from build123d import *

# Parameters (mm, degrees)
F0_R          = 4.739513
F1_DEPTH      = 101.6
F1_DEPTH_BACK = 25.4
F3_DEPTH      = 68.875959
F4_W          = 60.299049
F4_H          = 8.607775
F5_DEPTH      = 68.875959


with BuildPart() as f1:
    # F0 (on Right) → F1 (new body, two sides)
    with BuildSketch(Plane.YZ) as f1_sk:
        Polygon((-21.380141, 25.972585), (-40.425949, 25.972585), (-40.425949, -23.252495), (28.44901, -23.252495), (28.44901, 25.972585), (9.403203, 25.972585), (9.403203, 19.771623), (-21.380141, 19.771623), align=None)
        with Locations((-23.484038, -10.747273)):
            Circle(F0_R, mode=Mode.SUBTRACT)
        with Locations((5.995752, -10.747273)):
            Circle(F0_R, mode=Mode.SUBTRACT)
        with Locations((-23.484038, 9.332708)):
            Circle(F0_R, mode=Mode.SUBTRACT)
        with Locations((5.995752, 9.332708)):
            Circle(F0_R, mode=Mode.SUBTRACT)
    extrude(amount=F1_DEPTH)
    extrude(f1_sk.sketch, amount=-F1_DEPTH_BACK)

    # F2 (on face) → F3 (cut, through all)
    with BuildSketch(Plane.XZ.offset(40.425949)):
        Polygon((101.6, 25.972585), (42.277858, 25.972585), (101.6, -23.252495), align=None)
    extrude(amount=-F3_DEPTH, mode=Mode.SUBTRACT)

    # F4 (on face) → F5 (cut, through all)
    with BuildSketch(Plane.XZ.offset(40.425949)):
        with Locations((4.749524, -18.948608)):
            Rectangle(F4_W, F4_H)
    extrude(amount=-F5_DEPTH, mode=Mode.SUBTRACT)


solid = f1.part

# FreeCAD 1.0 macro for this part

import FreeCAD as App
import Part
import Sketcher
from FreeCAD import Vector
Q = App.Units.Quantity

doc = App.newDocument("Part")
body = doc.addObject("PartDesign::Body", "Body")

# Sketch on YZ plane
sketch1 = body.newObject("Sketcher::SketchObject", "Sketch")
sketch1.AttachmentSupport = (doc.getObject("YZ_Plane"), [""])
sketch1.MapMode = "FlatFace"
sketch1.addGeometry([
    Part.LineSegment(Vector(-21.4, 26, 0), Vector(-40.4, 26, 0)),  # 0
    Part.LineSegment(Vector(-40.4, 26, 0), Vector(-40.4, -23.3, 0)),  # 1
    Part.LineSegment(Vector(-40.4, -23.3, 0), Vector(28.4, -23.3, 0)),  # 2
    Part.LineSegment(Vector(28.4, -23.3, 0), Vector(28.4, 26, 0)),  # 3
    Part.LineSegment(Vector(28.4, 26, 0), Vector(9.4, 26, 0)),  # 4
    Part.LineSegment(Vector(9.4, 26, 0), Vector(9.4, 19.8, 0)),  # 5
    Part.LineSegment(Vector(9.4, 19.8, 0), Vector(-21.4, 19.8, 0)),  # 6
    Part.LineSegment(Vector(-21.4, 19.8, 0), Vector(-21.4, 26, 0)),  # 7
    Part.Circle(Vector(-23.5, -10.7, 0), Vector(0, 0, 1), 4.7),  # 8
    Part.Circle(Vector(6, -10.7, 0), Vector(0, 0, 1), 4.7),  # 9
    Part.Circle(Vector(-23.5, 9.3, 0), Vector(0, 0, 1), 4.7),  # 10
    Part.Circle(Vector(6, 9.3, 0), Vector(0, 0, 1), 4.7),  # 11
], False)
sketch1.addConstraint([
    Sketcher.Constraint("Coincident", 0, 2, 1, 1),
    Sketcher.Constraint("Coincident", 1, 2, 2, 1),
    Sketcher.Constraint("Coincident", 2, 2, 3, 1),
    Sketcher.Constraint("Coincident", 3, 2, 4, 1),
    Sketcher.Constraint("Coincident", 4, 2, 5, 1),
    Sketcher.Constraint("Coincident", 5, 2, 6, 1),
    Sketcher.Constraint("Coincident", 6, 2, 7, 1),
    Sketcher.Constraint("Coincident", 7, 2, 0, 1),
    Sketcher.Constraint("Horizontal", 0),
    Sketcher.Constraint("Vertical", 1),
    Sketcher.Constraint("Horizontal", 2),
    Sketcher.Constraint("Vertical", 3),
    Sketcher.Constraint("Horizontal", 4),
    Sketcher.Constraint("Vertical", 5),
    Sketcher.Constraint("Horizontal", 6),
    Sketcher.Constraint("Vertical", 7),
    Sketcher.Constraint("Equal", 8, 9),
    Sketcher.Constraint("Equal", 9, 10),
    Sketcher.Constraint("Equal", 10, 11),
    Sketcher.Constraint("Horizontal", 8, 3, 9, 3),
    Sketcher.Constraint("Horizontal", 10, 3, 11, 3),
    Sketcher.Constraint("Horizontal", 0, 2, 3, 2),
    Sketcher.Constraint("Vertical", 8, 3, 10, 3),
    Sketcher.Constraint("Vertical", 9, 3, 11, 3),
    Sketcher.Constraint("Equal", 0, 4),
    Sketcher.Constraint("Diameter", 8, Q("9.479026 mm")),
    Sketcher.Constraint("DistanceX", 0, 2, 0, 1, Q("19.045808 mm")),
    Sketcher.Constraint("DistanceX", 2, 1, 2, 2, Q("68.874959 mm")),
    Sketcher.Constraint("DistanceY", 1, 2, 1, 1, Q("49.22508 mm")),
    Sketcher.Constraint("DistanceY", 5, 2, 5, 1, Q("6.200962 mm")),
    Sketcher.Constraint("DistanceX", 0, 2, 11, 3, Q("46.421701 mm")),
    Sketcher.Constraint("DistanceX", 8, 3, -1, 1, Q("23.484038 mm")),
    Sketcher.Constraint("DistanceX", 0, 2, -1, 1, Q("40.425949 mm")),
    Sketcher.Constraint("DistanceY", 8, 3, 10, 3, Q("20.079981 mm")),
    Sketcher.Constraint("DistanceY", 8, 3, 0, 2, Q("36.719858 mm")),
    Sketcher.Constraint("DistanceY", 8, 3, -1, 1, Q("10.747273 mm")),
])
pad1 = body.newObject("PartDesign::Pad", "Pad")
pad1.Profile = sketch1
pad1.Type = "TwoLengths"
pad1.Length = Q("4 in")
pad1.Length2 = Q("1 in")

# Sketch on XZ plane
sketch2 = body.newObject("Sketcher::SketchObject", "Sketch001")
sketch2.AttachmentSupport = (doc.getObject("XZ_Plane"), [""])
sketch2.MapMode = "FlatFace"
sketch2.AttachmentOffset = App.Placement(Vector(0, 0, 40.425949), App.Rotation())
sketch2.addGeometry([
    Part.LineSegment(Vector(102, 26, 0), Vector(42, 26, 0)),
    Part.LineSegment(Vector(42, 26, 0), Vector(102, -23, 0)),
    Part.LineSegment(Vector(102, -23, 0), Vector(102, 26, 0)),
], False)
sketch2.addConstraint([
    Sketcher.Constraint("Coincident", 0, 2, 1, 1),
    Sketcher.Constraint("Coincident", 1, 2, 2, 1),
    Sketcher.Constraint("Coincident", 2, 2, 0, 1),
    Sketcher.Constraint("Horizontal", 0),
    Sketcher.Constraint("Vertical", 2),
    Sketcher.Constraint("DistanceX", -1, 1, 1, 2, Q("4 in")),
    Sketcher.Constraint("DistanceX", 0, 2, 0, 1, Q("59.322142 mm")),
    Sketcher.Constraint("DistanceY", 2, 1, 2, 2, Q("49.22508 mm")),
    Sketcher.Constraint("DistanceY", -1, 1, 0, 2, Q("25.972585 mm")),
])
pocket1 = body.newObject("PartDesign::Pocket", "Pocket")
pocket1.Profile = sketch2
pocket1.Type = "ThroughAll"

# Sketch on XZ plane
sketch3 = body.newObject("Sketcher::SketchObject", "Sketch002")
sketch3.AttachmentSupport = (doc.getObject("XZ_Plane"), [""])
sketch3.MapMode = "FlatFace"
sketch3.AttachmentOffset = App.Placement(Vector(0, 0, 40.425949), App.Rotation())
sketch3.addGeometry([
    Part.LineSegment(Vector(-25, -15, 0), Vector(-25, -23, 0)),
    Part.LineSegment(Vector(-25, -23, 0), Vector(35, -23, 0)),
    Part.LineSegment(Vector(35, -23, 0), Vector(35, -15, 0)),
    Part.LineSegment(Vector(35, -15, 0), Vector(-25, -15, 0)),
], False)
sketch3.addConstraint([
    Sketcher.Constraint("Coincident", 0, 2, 1, 1),
    Sketcher.Constraint("Coincident", 1, 2, 2, 1),
    Sketcher.Constraint("Coincident", 2, 2, 3, 1),
    Sketcher.Constraint("Coincident", 3, 2, 0, 1),
    Sketcher.Constraint("Vertical", 0),
    Sketcher.Constraint("Horizontal", 1),
    Sketcher.Constraint("Vertical", 2),
    Sketcher.Constraint("Horizontal", 3),
    Sketcher.Constraint("DistanceX", 0, 2, -1, 1, Q("1 in")),
    Sketcher.Constraint("DistanceX", 1, 1, 1, 2, Q("60.299049 mm")),
    Sketcher.Constraint("DistanceY", 0, 2, 0, 1, Q("8.607775 mm")),
    Sketcher.Constraint("DistanceY", 2, 2, -1, 1, Q("14.644721 mm")),
])
pocket2 = body.newObject("PartDesign::Pocket", "Pocket001")
pocket2.Profile = sketch3
pocket2.Type = "ThroughAll"

doc.recompute()
